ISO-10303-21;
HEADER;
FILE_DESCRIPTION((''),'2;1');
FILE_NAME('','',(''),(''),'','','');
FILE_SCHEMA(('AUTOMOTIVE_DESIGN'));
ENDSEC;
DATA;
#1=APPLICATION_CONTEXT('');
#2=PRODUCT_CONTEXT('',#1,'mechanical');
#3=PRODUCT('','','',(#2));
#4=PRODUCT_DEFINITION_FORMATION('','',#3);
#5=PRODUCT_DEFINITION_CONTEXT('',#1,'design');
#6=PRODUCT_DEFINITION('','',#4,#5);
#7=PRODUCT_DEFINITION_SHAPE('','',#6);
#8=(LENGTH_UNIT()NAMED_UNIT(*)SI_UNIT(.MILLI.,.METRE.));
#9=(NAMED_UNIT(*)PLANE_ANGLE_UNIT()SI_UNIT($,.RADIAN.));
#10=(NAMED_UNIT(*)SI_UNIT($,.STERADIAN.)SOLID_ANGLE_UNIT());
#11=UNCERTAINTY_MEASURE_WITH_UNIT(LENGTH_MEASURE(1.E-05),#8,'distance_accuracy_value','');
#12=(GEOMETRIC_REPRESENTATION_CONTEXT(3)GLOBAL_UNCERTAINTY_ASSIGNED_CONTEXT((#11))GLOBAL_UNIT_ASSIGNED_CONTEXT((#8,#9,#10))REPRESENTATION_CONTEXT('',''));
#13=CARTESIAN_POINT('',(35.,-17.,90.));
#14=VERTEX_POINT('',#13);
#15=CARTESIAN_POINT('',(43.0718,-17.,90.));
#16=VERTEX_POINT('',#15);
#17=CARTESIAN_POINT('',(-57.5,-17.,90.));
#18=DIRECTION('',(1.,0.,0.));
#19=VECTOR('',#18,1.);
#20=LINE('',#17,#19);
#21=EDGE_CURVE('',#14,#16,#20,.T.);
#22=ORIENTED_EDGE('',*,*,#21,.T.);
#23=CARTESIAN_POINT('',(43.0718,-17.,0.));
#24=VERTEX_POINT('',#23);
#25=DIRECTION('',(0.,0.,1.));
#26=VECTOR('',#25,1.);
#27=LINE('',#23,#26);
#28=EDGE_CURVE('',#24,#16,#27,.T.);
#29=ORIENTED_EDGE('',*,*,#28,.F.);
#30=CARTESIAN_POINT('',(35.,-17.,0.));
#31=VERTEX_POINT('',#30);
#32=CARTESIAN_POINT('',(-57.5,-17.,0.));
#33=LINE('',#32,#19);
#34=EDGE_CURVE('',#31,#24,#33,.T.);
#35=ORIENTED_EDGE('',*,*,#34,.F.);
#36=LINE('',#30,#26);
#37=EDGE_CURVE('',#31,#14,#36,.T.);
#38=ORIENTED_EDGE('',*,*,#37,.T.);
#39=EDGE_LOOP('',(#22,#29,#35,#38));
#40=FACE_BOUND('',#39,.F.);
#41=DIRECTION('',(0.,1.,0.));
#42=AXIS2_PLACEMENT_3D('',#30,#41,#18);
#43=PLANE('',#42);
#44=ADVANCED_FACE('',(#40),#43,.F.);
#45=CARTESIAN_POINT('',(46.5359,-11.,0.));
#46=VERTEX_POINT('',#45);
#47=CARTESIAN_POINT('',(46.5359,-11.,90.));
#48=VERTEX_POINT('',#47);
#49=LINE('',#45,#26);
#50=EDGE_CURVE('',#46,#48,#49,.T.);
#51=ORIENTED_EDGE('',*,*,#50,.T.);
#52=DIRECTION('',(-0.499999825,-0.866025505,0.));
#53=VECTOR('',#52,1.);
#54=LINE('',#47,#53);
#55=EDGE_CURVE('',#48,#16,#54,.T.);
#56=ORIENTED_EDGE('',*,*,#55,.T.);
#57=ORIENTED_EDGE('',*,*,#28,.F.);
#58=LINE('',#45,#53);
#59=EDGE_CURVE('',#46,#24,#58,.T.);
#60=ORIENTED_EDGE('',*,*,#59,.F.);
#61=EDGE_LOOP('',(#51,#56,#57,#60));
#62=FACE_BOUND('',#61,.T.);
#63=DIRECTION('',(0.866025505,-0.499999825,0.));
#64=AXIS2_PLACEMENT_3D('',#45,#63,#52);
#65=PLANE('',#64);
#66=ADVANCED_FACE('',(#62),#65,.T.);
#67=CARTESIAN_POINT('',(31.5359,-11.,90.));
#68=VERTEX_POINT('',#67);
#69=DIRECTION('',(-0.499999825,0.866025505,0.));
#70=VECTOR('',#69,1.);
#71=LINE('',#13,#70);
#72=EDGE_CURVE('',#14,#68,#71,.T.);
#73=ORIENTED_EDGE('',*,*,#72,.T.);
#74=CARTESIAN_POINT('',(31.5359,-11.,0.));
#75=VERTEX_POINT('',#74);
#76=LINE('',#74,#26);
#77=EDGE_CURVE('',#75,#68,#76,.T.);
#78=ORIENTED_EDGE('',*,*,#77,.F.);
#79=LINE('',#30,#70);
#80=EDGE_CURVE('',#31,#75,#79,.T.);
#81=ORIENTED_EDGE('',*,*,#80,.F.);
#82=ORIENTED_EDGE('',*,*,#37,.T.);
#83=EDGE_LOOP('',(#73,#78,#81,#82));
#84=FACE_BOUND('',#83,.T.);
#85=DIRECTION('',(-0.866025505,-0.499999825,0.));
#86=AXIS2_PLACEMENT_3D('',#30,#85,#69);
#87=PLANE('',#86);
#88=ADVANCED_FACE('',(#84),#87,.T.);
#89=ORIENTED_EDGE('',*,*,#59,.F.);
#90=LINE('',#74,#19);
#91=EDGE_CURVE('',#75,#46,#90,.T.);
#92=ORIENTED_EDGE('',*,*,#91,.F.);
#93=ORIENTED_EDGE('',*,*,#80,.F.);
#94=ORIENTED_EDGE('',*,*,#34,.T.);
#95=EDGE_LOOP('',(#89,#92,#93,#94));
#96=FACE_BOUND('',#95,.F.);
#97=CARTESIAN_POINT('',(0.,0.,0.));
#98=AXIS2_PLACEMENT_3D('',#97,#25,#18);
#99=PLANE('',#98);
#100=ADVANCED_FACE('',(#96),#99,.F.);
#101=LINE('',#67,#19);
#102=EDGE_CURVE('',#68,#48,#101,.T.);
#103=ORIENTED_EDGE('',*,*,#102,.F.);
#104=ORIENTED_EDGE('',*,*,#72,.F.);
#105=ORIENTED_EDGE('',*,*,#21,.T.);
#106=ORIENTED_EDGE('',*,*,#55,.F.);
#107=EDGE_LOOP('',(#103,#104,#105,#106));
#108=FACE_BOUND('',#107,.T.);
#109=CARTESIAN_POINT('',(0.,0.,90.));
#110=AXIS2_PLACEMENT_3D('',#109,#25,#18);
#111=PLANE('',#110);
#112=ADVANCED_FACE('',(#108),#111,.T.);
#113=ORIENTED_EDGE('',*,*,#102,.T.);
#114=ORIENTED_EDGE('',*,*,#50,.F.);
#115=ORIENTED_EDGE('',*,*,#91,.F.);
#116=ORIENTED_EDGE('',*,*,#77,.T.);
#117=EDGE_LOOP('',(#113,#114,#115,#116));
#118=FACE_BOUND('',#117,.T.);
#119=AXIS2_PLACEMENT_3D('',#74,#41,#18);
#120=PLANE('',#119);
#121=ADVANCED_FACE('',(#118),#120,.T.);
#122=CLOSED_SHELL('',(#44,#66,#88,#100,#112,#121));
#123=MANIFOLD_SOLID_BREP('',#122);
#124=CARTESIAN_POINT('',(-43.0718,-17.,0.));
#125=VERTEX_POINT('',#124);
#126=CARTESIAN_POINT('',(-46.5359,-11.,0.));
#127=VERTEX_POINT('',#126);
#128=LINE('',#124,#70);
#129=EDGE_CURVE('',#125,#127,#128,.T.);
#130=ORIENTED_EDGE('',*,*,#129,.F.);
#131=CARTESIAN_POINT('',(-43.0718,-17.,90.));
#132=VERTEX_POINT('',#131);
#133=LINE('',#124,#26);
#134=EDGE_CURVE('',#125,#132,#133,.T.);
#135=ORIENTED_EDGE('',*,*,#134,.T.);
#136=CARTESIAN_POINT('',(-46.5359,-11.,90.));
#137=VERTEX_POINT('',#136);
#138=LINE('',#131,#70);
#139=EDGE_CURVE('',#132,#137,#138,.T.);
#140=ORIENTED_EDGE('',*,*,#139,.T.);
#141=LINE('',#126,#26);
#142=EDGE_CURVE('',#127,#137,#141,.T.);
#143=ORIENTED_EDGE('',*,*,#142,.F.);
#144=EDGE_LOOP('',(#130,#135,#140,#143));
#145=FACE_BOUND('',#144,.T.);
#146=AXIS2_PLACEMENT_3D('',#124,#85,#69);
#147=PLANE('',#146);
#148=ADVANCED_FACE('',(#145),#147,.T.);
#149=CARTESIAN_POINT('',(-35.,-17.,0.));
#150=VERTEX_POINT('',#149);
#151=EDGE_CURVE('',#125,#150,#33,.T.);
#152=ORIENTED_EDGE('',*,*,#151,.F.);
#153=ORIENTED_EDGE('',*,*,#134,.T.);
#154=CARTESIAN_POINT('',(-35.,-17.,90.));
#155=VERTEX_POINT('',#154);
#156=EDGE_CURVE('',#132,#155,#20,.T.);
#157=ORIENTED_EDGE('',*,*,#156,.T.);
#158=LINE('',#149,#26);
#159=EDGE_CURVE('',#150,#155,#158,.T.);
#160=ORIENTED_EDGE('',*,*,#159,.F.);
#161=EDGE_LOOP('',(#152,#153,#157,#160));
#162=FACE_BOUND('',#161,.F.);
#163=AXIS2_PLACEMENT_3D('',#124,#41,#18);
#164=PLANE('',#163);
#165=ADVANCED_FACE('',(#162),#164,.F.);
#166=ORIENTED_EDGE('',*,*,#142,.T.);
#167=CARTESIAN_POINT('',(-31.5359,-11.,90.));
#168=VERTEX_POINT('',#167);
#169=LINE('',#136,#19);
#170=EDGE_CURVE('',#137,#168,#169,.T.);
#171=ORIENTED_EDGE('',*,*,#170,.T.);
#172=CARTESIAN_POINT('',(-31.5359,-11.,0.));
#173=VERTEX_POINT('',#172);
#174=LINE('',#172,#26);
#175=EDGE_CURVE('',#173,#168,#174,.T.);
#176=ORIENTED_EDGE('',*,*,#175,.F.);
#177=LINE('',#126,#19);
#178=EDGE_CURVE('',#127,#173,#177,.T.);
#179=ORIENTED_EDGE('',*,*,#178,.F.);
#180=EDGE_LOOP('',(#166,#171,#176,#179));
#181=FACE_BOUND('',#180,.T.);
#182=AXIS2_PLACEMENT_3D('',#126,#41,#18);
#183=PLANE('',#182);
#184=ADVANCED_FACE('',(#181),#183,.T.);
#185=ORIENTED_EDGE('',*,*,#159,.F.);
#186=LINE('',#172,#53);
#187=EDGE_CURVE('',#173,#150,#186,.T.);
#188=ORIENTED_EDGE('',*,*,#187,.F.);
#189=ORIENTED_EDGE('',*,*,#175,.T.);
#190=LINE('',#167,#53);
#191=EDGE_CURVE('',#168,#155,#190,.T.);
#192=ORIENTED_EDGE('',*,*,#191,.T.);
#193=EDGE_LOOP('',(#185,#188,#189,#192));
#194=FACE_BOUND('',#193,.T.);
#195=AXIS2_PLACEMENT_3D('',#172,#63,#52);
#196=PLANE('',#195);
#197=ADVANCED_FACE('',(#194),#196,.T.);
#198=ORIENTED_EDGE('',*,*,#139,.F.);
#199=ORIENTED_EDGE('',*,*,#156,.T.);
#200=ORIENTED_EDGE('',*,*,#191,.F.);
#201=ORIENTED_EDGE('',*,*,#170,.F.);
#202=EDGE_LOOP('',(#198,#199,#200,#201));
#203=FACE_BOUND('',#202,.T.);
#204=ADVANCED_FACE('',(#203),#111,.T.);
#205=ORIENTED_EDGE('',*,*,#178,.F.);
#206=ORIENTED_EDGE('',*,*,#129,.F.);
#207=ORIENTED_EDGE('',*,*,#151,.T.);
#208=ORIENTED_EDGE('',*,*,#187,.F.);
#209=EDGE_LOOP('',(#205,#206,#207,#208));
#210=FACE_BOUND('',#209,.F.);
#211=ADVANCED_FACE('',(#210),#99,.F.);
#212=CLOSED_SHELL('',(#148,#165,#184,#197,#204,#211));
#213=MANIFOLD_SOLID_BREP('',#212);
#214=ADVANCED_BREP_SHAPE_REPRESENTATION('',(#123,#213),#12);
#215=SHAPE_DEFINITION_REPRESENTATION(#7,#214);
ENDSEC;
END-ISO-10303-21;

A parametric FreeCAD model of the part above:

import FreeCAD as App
import Part
import Sketcher

V = App.Vector
Q = App.Units.Quantity

doc = App.newDocument("Part")
params = doc.addObject("Spreadsheet::Sheet", "Params")
for row, (alias, value) in enumerate([
    ("sketch1_width", "15 mm"),
    ("pad1_length", "90 mm"),
], start=1):
    params.set(f"A{row}", alias)
    params.set(f"B{row}", "=" + value)
    params.setAlias(f"B{row}", alias)

body = doc.addObject("PartDesign::Body", "Body")
body.AllowCompound = True

sketch1 = body.newObject("Sketcher::SketchObject", "Sketch")
sketch1.AttachmentSupport = (doc.getObject("XY_Plane"), [""])
sketch1.MapMode = "FlatFace"
sketch1.addGeometry([
    Part.LineSegment(V(-47, -11, 0), V(-43, -17, 0)),
    Part.LineSegment(V(-43, -17, 0), V(-35, -17, 0)),
    Part.LineSegment(V(-35, -17, 0), V(-32, -11, 0)),
    Part.LineSegment(V(-32, -11, 0), V(-47, -11, 0)),
    Part.LineSegment(V(32, -11, 0), V(35, -17, 0)),
    Part.LineSegment(V(35, -17, 0), V(43, -17, 0)),
    Part.LineSegment(V(43, -17, 0), V(47, -11, 0)),
    Part.LineSegment(V(47, -11, 0), V(32, -11, 0)),
], False)
sketch1.addConstraint([
    Sketcher.Constraint("Coincident", 0, 2, 1, 1),
    Sketcher.Constraint("Coincident", 1, 2, 2, 1),
    Sketcher.Constraint("Coincident", 2, 2, 3, 1),
    Sketcher.Constraint("Coincident", 3, 2, 0, 1),
    Sketcher.Constraint("Coincident", 4, 2, 5, 1),
    Sketcher.Constraint("Coincident", 5, 2, 6, 1),
    Sketcher.Constraint("Coincident", 6, 2, 7, 1),
    Sketcher.Constraint("Coincident", 7, 2, 4, 1),
    Sketcher.Constraint("Horizontal", 1),
    Sketcher.Constraint("Horizontal", 3),
    Sketcher.Constraint("Horizontal", 5),
    Sketcher.Constraint("Horizontal", 7),
    Sketcher.Constraint("Symmetric", 1, 2, 4, 2, -2),
    Sketcher.Constraint("Symmetric", 3, 2, 6, 2, -2),
    Sketcher.Constraint("Parallel", 0, 4),
    Sketcher.Constraint("Parallel", 2, 6),
    Sketcher.Constraint("Equal", 1, 5),
    Sketcher.Constraint("DistanceX", 3, 2, 3, 1, 15.0),
    Sketcher.Constraint("Angle", 0, Q("-60 deg")),
    Sketcher.Constraint("DistanceY", 1, 2, 2, 2, 6.0),
    Sketcher.Constraint("DistanceY", 0, 2, -1, 1, 17.0),
    Sketcher.Constraint("DistanceX", 1, 2, -1, 1, 35.0),
])
sketch1.setExpression("Constraints[17]", "Params.sketch1_width")
pad1 = body.newObject("PartDesign::Pad", "Pad")
pad1.Profile = sketch1
pad1.setExpression("Length", "Params.pad1_length")

doc.recompute()
